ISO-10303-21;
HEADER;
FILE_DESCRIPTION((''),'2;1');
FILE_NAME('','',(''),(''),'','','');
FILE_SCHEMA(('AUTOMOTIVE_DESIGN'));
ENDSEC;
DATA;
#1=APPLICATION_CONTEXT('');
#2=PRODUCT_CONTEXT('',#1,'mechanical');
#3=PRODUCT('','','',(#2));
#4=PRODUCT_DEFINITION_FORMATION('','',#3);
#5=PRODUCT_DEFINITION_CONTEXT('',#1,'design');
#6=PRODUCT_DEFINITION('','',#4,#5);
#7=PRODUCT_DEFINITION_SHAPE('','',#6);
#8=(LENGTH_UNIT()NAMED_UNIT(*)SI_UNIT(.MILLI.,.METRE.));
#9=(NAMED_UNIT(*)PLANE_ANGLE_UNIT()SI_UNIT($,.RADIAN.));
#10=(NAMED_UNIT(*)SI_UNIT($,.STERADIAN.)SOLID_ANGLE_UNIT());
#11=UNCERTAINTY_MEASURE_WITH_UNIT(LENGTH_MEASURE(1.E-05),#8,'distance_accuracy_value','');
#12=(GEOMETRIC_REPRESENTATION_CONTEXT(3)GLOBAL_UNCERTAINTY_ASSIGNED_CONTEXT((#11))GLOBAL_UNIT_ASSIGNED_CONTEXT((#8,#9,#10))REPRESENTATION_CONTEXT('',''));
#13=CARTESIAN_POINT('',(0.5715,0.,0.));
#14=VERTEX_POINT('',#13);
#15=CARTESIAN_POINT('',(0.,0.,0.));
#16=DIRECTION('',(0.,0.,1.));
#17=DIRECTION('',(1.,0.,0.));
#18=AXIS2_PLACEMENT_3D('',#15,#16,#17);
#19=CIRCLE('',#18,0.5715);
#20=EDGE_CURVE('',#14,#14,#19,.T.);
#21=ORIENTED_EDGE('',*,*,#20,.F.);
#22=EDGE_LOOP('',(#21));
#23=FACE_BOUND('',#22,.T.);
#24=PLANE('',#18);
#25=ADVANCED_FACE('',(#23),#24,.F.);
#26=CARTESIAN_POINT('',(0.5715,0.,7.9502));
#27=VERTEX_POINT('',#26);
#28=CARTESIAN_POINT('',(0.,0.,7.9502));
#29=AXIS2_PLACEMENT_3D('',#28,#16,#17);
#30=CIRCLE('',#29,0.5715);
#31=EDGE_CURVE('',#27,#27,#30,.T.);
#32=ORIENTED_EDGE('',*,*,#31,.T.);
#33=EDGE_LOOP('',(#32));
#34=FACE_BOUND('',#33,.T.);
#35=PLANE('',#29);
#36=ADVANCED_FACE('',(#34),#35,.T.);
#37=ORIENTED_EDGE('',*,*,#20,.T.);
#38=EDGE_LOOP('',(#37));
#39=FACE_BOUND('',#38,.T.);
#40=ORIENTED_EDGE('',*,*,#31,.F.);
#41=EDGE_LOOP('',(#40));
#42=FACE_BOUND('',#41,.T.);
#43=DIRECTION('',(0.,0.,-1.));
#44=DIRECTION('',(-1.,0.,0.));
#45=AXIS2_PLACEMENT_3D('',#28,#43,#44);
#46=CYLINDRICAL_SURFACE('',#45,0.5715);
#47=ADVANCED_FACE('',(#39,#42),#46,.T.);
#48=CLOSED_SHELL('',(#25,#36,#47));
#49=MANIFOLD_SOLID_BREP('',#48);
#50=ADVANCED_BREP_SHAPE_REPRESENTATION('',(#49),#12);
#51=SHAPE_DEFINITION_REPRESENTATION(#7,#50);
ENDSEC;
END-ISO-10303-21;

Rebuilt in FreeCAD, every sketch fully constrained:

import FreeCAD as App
import Part
import Sketcher

V = App.Vector
Q = App.Units.Quantity

doc = App.newDocument("Part")
params = doc.addObject("Spreadsheet::Sheet", "Params")
for row, (alias, value) in enumerate([
    ("sketch1_diameter", "0.045 in"),
    ("pad1_length", "0.313 in"),
], start=1):
    params.set(f"A{row}", alias)
    params.set(f"B{row}", "=" + value)
    params.setAlias(f"B{row}", alias)

body = doc.addObject("PartDesign::Body", "Body")

sketch1 = body.newObject("Sketcher::SketchObject", "Sketch")
sketch1.AttachmentSupport = (doc.getObject("XY_Plane"), [""])
sketch1.MapMode = "FlatFace"
sketch1.addGeometry(Part.Circle(V(0, 0, 0), V(0, 0, 1), 0.6), False)
sketch1.addConstraint(Sketcher.Constraint("Coincident", 0, 3, -1, 1))
sketch1.addConstraint(Sketcher.Constraint("Diameter", 0, Q("0.045 in")))
sketch1.setExpression("Constraints[1]", "Params.sketch1_diameter")
pad1 = body.newObject("PartDesign::Pad", "Pad")
pad1.Profile = sketch1
pad1.setExpression("Length", "Params.pad1_length")

doc.recompute()
